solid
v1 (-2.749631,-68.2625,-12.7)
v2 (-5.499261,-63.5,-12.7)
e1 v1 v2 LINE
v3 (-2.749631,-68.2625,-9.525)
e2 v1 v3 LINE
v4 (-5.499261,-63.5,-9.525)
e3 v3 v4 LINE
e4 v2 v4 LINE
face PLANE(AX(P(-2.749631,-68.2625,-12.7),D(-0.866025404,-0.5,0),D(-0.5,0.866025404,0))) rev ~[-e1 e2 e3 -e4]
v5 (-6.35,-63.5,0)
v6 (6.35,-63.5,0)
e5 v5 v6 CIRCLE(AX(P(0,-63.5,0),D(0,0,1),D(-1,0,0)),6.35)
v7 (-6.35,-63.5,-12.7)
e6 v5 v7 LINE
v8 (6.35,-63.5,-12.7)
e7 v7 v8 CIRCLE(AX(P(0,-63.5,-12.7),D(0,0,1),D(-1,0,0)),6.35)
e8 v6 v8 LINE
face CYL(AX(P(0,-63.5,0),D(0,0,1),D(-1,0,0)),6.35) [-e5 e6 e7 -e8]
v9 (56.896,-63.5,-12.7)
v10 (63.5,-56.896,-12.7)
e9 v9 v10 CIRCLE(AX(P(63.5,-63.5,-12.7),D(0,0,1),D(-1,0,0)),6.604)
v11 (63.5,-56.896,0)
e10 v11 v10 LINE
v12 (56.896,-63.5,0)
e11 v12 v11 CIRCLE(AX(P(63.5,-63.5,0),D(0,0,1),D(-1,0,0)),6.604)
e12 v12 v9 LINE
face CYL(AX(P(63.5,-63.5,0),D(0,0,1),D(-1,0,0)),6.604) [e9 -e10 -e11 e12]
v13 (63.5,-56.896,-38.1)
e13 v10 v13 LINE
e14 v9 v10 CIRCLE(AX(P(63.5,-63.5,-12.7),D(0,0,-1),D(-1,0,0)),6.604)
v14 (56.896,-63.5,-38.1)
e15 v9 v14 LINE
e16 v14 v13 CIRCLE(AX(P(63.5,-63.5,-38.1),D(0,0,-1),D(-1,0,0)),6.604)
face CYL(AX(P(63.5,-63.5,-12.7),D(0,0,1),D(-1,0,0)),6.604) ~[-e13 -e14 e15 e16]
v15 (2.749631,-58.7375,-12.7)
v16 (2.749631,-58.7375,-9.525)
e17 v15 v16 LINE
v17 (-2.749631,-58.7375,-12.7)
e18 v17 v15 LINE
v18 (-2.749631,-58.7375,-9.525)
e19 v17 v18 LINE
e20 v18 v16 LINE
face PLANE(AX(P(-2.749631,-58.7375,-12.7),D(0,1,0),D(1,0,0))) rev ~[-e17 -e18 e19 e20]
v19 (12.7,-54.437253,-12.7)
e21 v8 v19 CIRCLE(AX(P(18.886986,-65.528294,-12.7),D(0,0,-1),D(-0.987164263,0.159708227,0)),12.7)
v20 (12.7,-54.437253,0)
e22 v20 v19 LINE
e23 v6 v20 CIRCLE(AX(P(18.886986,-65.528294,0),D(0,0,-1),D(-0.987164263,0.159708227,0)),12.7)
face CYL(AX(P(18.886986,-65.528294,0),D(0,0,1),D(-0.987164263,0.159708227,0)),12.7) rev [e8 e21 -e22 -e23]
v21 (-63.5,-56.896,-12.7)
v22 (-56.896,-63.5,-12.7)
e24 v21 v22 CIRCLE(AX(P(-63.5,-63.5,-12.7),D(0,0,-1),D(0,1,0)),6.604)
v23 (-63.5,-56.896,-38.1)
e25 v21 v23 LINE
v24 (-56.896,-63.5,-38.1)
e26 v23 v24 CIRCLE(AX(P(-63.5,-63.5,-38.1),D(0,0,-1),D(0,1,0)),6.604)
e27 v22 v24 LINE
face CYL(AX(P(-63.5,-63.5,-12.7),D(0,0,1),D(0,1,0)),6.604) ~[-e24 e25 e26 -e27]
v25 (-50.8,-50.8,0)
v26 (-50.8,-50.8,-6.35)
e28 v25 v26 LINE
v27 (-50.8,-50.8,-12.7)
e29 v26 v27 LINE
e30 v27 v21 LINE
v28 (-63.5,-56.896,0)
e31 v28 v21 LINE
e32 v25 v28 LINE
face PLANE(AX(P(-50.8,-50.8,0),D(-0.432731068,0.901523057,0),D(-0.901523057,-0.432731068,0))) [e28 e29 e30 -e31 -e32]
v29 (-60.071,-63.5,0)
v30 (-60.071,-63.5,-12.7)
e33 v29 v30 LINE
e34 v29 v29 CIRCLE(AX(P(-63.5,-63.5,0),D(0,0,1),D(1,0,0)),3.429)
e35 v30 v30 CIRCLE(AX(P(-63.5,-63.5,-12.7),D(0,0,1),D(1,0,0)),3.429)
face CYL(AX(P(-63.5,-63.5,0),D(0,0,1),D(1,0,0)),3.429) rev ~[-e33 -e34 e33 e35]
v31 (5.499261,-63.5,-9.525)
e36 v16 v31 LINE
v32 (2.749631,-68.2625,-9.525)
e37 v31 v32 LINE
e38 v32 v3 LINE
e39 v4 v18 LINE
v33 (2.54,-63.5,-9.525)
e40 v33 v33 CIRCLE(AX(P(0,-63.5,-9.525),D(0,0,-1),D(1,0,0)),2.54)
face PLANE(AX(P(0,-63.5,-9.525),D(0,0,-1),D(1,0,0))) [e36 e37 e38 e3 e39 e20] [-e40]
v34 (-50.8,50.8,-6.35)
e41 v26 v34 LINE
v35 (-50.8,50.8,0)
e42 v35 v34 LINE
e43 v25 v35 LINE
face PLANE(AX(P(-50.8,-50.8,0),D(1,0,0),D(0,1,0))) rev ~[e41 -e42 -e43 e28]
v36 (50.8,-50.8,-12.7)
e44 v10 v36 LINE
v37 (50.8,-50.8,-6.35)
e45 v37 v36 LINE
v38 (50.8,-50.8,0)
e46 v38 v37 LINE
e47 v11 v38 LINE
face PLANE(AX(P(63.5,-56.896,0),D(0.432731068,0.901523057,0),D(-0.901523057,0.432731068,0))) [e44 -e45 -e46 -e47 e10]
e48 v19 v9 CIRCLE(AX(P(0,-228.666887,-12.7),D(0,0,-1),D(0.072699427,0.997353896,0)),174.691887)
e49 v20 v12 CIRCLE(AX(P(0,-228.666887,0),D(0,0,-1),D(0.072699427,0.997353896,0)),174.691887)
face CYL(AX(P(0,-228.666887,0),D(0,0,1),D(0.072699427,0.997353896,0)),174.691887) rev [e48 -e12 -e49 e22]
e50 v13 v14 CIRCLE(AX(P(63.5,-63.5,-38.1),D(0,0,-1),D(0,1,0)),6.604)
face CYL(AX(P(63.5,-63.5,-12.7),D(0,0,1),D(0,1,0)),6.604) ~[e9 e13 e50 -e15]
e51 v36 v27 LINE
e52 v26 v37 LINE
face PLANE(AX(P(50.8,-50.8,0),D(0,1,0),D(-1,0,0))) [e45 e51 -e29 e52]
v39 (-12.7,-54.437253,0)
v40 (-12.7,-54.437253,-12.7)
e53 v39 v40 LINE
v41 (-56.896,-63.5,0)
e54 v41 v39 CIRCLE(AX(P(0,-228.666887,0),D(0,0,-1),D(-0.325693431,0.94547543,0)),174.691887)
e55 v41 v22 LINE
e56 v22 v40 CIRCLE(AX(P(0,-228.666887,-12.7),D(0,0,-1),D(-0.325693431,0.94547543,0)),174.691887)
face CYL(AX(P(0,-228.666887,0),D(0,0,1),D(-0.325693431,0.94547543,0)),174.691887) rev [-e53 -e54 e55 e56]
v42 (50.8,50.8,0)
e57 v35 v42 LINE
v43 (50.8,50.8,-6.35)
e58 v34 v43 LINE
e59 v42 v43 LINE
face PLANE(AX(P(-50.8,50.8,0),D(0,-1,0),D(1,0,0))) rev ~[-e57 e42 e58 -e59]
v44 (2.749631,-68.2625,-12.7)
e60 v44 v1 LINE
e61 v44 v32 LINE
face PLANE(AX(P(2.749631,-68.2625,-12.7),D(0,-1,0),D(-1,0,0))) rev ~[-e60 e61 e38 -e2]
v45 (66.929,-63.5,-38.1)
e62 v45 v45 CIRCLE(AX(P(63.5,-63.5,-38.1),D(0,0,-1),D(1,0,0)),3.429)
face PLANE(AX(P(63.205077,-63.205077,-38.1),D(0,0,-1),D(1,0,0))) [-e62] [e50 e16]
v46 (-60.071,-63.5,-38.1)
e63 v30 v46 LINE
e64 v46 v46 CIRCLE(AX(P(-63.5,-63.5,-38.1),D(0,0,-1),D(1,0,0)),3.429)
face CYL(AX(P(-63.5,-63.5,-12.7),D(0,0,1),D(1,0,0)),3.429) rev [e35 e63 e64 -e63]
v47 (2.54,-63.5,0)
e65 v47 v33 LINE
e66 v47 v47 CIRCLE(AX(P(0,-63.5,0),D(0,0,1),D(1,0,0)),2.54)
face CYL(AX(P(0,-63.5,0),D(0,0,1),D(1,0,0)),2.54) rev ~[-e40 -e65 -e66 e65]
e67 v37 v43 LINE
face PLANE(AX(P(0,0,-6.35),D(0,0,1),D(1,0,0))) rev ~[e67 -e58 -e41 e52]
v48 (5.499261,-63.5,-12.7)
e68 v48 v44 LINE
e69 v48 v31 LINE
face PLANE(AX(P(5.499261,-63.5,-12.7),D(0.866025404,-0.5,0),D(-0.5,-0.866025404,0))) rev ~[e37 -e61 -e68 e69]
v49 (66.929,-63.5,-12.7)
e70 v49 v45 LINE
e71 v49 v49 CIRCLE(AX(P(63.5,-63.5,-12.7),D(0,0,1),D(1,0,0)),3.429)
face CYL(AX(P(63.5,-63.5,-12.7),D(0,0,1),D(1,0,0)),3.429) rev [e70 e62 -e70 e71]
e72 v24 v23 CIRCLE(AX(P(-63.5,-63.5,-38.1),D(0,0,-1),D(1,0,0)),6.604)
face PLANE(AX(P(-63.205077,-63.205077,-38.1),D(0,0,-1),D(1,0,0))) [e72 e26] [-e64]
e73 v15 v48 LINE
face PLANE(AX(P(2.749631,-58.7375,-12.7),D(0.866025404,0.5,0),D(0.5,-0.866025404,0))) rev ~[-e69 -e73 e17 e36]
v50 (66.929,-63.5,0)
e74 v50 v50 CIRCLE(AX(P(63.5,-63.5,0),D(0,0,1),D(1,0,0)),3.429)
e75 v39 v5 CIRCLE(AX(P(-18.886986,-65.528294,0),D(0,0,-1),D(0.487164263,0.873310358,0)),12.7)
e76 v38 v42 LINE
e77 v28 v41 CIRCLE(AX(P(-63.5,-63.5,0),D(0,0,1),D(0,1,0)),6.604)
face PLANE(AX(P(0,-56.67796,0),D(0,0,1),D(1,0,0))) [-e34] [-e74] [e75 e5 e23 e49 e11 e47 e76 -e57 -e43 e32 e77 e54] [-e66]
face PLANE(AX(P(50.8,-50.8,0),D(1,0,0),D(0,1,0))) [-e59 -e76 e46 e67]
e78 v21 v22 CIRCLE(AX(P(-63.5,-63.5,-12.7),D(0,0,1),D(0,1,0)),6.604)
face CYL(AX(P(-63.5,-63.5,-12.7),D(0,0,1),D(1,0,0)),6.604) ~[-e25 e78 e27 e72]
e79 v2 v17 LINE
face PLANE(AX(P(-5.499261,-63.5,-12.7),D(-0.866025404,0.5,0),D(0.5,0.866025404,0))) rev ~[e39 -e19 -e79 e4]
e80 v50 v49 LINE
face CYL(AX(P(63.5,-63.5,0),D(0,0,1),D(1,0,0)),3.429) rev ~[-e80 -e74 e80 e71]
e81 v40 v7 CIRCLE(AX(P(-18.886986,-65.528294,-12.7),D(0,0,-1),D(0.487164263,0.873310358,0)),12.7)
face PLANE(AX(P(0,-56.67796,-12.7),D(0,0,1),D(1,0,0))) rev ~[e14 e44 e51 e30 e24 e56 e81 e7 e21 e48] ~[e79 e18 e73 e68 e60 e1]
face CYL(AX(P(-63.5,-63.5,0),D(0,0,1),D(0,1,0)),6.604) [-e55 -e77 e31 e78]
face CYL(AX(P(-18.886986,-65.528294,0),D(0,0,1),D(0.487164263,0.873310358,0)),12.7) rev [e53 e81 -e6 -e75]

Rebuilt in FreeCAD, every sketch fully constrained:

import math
import FreeCAD as App
import Part
import Sketcher

V = App.Vector
Q = App.Units.Quantity

doc = App.newDocument("Part")
params = doc.addObject("Spreadsheet::Sheet", "Params")
for row, (alias, value) in enumerate([
    ("sketch1_width", "4 in"),
    ("pad1_length", "0.25 in"),
    ("sketch2_diameter", "0.2 in"),
    ("sketch2_radius", "0.5 in"),
    ("sketch2_diameter2", "0.27 in"),
    ("sketch2_width", "4 in"),
    ("sketch2_radius2", "0.26 in"),
    ("pad2_length", "0.5 in"),
    ("sketch3_diameter", "0.27 in"),
    ("sketch3_radius", "0.26 in"),
    ("pad3_length", "1 in"),
    ("sketch4_diameter", "0.2 in"),
    ("pocket1_length", "0.125 in"),
], start=1):
    params.set(f"A{row}", alias)
    params.set(f"B{row}", "=" + value)
    params.setAlias(f"B{row}", alias)

body = doc.addObject("PartDesign::Body", "Body")

# Sketch on XY plane
sketch1 = doc.addObject("Sketcher::SketchObject", "Sketch")
body.addObject(sketch1)
sketch1.AttachmentSupport = (doc.XY_Plane, [""])
sketch1.MapMode = "FlatFace"
sketch1.addGeometry(Part.LineSegment(V(-51, 51, 0), V(-51, -51, 0)), False)
sketch1.addGeometry(Part.LineSegment(V(-51, -51, 0), V(51, -51, 0)), False)
sketch1.addGeometry(Part.LineSegment(V(51, -51, 0), V(51, 51, 0)), False)
sketch1.addGeometry(Part.LineSegment(V(51, 51, 0), V(-51, 51, 0)), False)
sketch1.addConstraint(Sketcher.Constraint("Coincident", 0, 2, 1, 1))
sketch1.addConstraint(Sketcher.Constraint("Coincident", 1, 2, 2, 1))
sketch1.addConstraint(Sketcher.Constraint("Coincident", 2, 2, 3, 1))
sketch1.addConstraint(Sketcher.Constraint("Coincident", 3, 2, 0, 1))
sketch1.addConstraint(Sketcher.Constraint("Vertical", 0))
sketch1.addConstraint(Sketcher.Constraint("Horizontal", 1))
sketch1.addConstraint(Sketcher.Constraint("Vertical", 2))
sketch1.addConstraint(Sketcher.Constraint("Horizontal", 3))
sketch1.addConstraint(Sketcher.Constraint("Symmetric", 0, 2, 2, 2, -1, 1))
sketch1.addConstraint(Sketcher.Constraint("Equal", 3, 0))
sketch1.addConstraint(Sketcher.Constraint("DistanceX", 1, 1, 1, 2, Q("4 in")))
sketch1.setExpression("Constraints[10]", "Params.sketch1_width")
pad1 = doc.addObject("PartDesign::Pad", "Pad")
body.addObject(pad1)
pad1.Profile = sketch1
pad1.setExpression("Length", "Params.pad1_length")
pad1.Reversed = True

# Sketch on XY plane
sketch2 = doc.addObject("Sketcher::SketchObject", "Sketch001")
body.addObject(sketch2)
sketch2.AttachmentSupport = (doc.XY_Plane, [""])
sketch2.MapMode = "FlatFace"
sketch2.addGeometry(Part.LineSegment(V(-50.8, -50.8, 0), V(-63.5, -56.9, 0)), False)
sketch2.addGeometry(Part.ArcOfCircle(Part.Circle(V(-63.5, -63.5, 0), V(0, 0, 1), 6.6), math.radians(90), math.radians(360)), False)
sketch2.addGeometry(Part.ArcOfCircle(Part.Circle(V(0, -228.7, 0), V(0, 0, 1), 174.7), math.radians(94.17), math.radians(109.01)), False)
sketch2.addGeometry(Part.ArcOfCircle(Part.Circle(V(-18.9, -65.5, 0), V(0, 0, 1), 12.7), math.radians(9), math.radians(61)), False)
sketch2.addGeometry(Part.ArcOfCircle(Part.Circle(V(0, -63.5, 0), V(0, 0, 1), 6.3), math.radians(180), math.radians(360)), False)
sketch2.addGeometry(Part.ArcOfCircle(Part.Circle(V(18.9, -65.5, 0), V(0, 0, 1), 12.7), math.radians(119), math.radians(171)), False)
sketch2.addGeometry(Part.ArcOfCircle(Part.Circle(V(0, -228.7, 0), V(0, 0, 1), 174.7), math.radians(70.99), math.radians(85.83)), False)
sketch2.addGeometry(Part.ArcOfCircle(Part.Circle(V(63.5, -63.5, 0), V(0, 0, 1), 6.6), math.radians(180), math.radians(450)), False)
sketch2.addGeometry(Part.LineSegment(V(63.5, -56.9, 0), V(50.8, -50.8, 0)), False)
sketch2.addGeometry(Part.LineSegment(V(50.8, -50.8, 0), V(-50.8, -50.8, 0)), False)
sketch2.addGeometry(Part.Circle(V(-63.5, -63.5, 0), V(0, 0, 1), 3.4), False)
sketch2.addGeometry(Part.Circle(V(0, -63.5, 0), V(0, 0, 1), 2.5), False)
sketch2.addGeometry(Part.Circle(V(63.5, -63.5, 0), V(0, 0, 1), 3.4), False)
sketch2.addConstraint(Sketcher.Constraint("Coincident", 0, 2, 1, 1))
sketch2.addConstraint(Sketcher.Constraint("Coincident", 1, 2, 2, 2))
sketch2.addConstraint(Sketcher.Constraint("Coincident", 2, 1, 3, 2))
sketch2.addConstraint(Sketcher.Constraint("Coincident", 3, 1, 4, 1))
sketch2.addConstraint(Sketcher.Constraint("Coincident", 4, 2, 5, 2))
sketch2.addConstraint(Sketcher.Constraint("Coincident", 5, 1, 6, 2))
sketch2.addConstraint(Sketcher.Constraint("Coincident", 6, 1, 7, 1))
sketch2.addConstraint(Sketcher.Constraint("Coincident", 7, 2, 8, 1))
sketch2.addConstraint(Sketcher.Constraint("Coincident", 8, 2, 9, 1))
sketch2.addConstraint(Sketcher.Constraint("Coincident", 9, 2, 0, 1))
sketch2.addConstraint(Sketcher.Constraint("Horizontal", 9))
sketch2.addConstraint(Sketcher.Constraint("Coincident", 6, 3, 2, 3))
sketch2.addConstraint(Sketcher.Constraint("Coincident", 10, 3, 1, 3))
sketch2.addConstraint(Sketcher.Constraint("Coincident", 11, 3, 4, 3))
sketch2.addConstraint(Sketcher.Constraint("Coincident", 12, 3, 7, 3))
sketch2.addConstraint(Sketcher.Constraint("Equal", 3, 5))
sketch2.addConstraint(Sketcher.Constraint("Equal", 2, 6))
sketch2.addConstraint(Sketcher.Constraint("Equal", 1, 7))
sketch2.addConstraint(Sketcher.Constraint("Equal", 10, 12))
sketch2.addConstraint(Sketcher.Constraint("Symmetric", 3, 3, 5, 3, -2))
sketch2.addConstraint(Sketcher.Constraint("Symmetric", 1, 3, 7, 3, -2))
sketch2.addConstraint(Sketcher.Constraint("PointOnObject", 2, 3, -2))
sketch2.addConstraint(Sketcher.Constraint("PointOnObject", 4, 3, -2))
sketch2.addConstraint(Sketcher.Constraint("Horizontal", 1, 3, 4, 3))
sketch2.addConstraint(Sketcher.Constraint("Horizontal", 12, 3, 1, 2))
sketch2.addConstraint(Sketcher.Constraint("Horizontal", 1, 2, 3, 1))
sketch2.addConstraint(Sketcher.Constraint("Vertical", 10, 3, 0, 2))
sketch2.addConstraint(Sketcher.Constraint("Vertical", 12, 3, 7, 2))
sketch2.addConstraint(Sketcher.Constraint("Equal", 0, 8))
sketch2.addConstraint(Sketcher.Constraint("Diameter", 11, Q("0.2 in")))
sketch2.addConstraint(Sketcher.Constraint("Radius", 3, Q("0.5 in")))
sketch2.addConstraint(Sketcher.Constraint("Diameter", 10, Q("0.27 in")))
sketch2.addConstraint(Sketcher.Constraint("DistanceX", 9, 2, 9, 1, Q("4 in")))
sketch2.addConstraint(Sketcher.Constraint("Radius", 1, Q("0.26 in")))
sketch2.addConstraint(Sketcher.Constraint("Radius", 4, Q("0.25 in")))
sketch2.addConstraint(Sketcher.Constraint("DistanceY", 8, 2, -1, 1, Q("2 in")))
sketch2.addConstraint(Sketcher.Constraint("DistanceX", 1, 3, 7, 3, Q("5 in")))
sketch2.addConstraint(Sketcher.Constraint("DistanceX", 5, 1, 7, 2, Q("2 in")))
sketch2.addConstraint(Sketcher.Constraint("DistanceY", 1, 3, -1, 1, Q("2.5 in")))
sketch2.addConstraint(Sketcher.Constraint("Radius", 2, 174.691887))
sketch2.setExpression("Constraints[29]", "Params.sketch2_diameter")
sketch2.setExpression("Constraints[30]", "Params.sketch2_radius")
sketch2.setExpression("Constraints[31]", "Params.sketch2_diameter2")
sketch2.setExpression("Constraints[32]", "Params.sketch2_width")
sketch2.setExpression("Constraints[33]", "Params.sketch2_radius2")
pad2 = doc.addObject("PartDesign::Pad", "Pad001")
body.addObject(pad2)
pad2.Profile = sketch2
pad2.setExpression("Length", "Params.pad2_length")
pad2.Reversed = True

# Sketch on XY plane
sketch3 = doc.addObject("Sketcher::SketchObject", "Sketch002")
body.addObject(sketch3)
sketch3.AttachmentSupport = (doc.XY_Plane, [""])
sketch3.MapMode = "FlatFace"
sketch3.AttachmentOffset = App.Placement(V(0, 0, -0.5 * 25.4), App.Rotation())
sketch3.addGeometry(Part.ArcOfCircle(Part.Circle(V(-63.5, -63.5, 0), V(0, 0, 1), 6.6), math.radians(90), math.radians(360)), False)
sketch3.addGeometry(Part.ArcOfCircle(Part.Circle(V(-63.5, -63.5, 0), V(0, 0, 1), 6.6), math.radians(0), math.radians(90)), False)
sketch3.addGeometry(Part.Circle(V(-63.5, -63.5, 0), V(0, 0, 1), 3.4), False)
sketch3.addGeometry(Part.ArcOfCircle(Part.Circle(V(63.5, -63.5, 0), V(0, 0, 1), 6.6), math.radians(90), math.radians(180)), False)
sketch3.addGeometry(Part.ArcOfCircle(Part.Circle(V(63.5, -63.5, 0), V(0, 0, 1), 6.6), math.radians(180), math.radians(450)), False)
sketch3.addGeometry(Part.Circle(V(63.5, -63.5, 0), V(0, 0, 1), 3.4), False)
sketch3.addConstraint(Sketcher.Constraint("Tangent", 0, 1, 1, 2))
sketch3.addConstraint(Sketcher.Constraint("Coincident", 1, 1, 0, 2))
sketch3.addConstraint(Sketcher.Constraint("Tangent", 3, 1, 4, 2))
sketch3.addConstraint(Sketcher.Constraint("Coincident", 4, 1, 3, 2))
sketch3.addConstraint(Sketcher.Constraint("Coincident", 2, 3, 0, 3))
sketch3.addConstraint(Sketcher.Constraint("Coincident", 5, 3, 3, 3))
sketch3.addConstraint(Sketcher.Constraint("Equal", 1, 3))
sketch3.addConstraint(Sketcher.Constraint("Equal", 2, 5))
sketch3.addConstraint(Sketcher.Constraint("Symmetric", 0, 3, 3, 3, -2))
sketch3.addConstraint(Sketcher.Constraint("Horizontal", 5, 3, 1, 1))
sketch3.addConstraint(Sketcher.Constraint("Horizontal", 1, 1, 4, 1))
sketch3.addConstraint(Sketcher.Constraint("Vertical", 2, 3, 0, 1))
sketch3.addConstraint(Sketcher.Constraint("Vertical", 5, 3, 3, 1))
sketch3.addConstraint(Sketcher.Constraint("Diameter", 2, Q("0.27 in")))
sketch3.addConstraint(Sketcher.Constraint("Radius", 0, Q("0.26 in")))
sketch3.addConstraint(Sketcher.Constraint("DistanceX", 0, 3, 3, 3, Q("5 in")))
sketch3.addConstraint(Sketcher.Constraint("DistanceY", 0, 3, -1, 1, Q("2.5 in")))
sketch3.setExpression("Constraints[13]", "Params.sketch3_diameter")
sketch3.setExpression("Constraints[14]", "Params.sketch3_radius")
pad3 = doc.addObject("PartDesign::Pad", "Pad002")
body.addObject(pad3)
pad3.Profile = sketch3
pad3.setExpression("Length", "Params.pad3_length")
pad3.Reversed = True

# Sketch on XY plane
sketch4 = doc.addObject("Sketcher::SketchObject", "Sketch003")
body.addObject(sketch4)
sketch4.AttachmentSupport = (doc.XY_Plane, [""])
sketch4.MapMode = "FlatFace"
sketch4.AttachmentOffset = App.Placement(V(0, 0, -0.5 * 25.4), App.Rotation())
sketch4.addGeometry(Part.LineSegment(V(2.7, -68.3, 0), V(-2.7, -68.3, 0)), False)
sketch4.addGeometry(Part.LineSegment(V(-2.7, -68.3, 0), V(-5.5, -63.5, 0)), False)
sketch4.addGeometry(Part.LineSegment(V(-5.5, -63.5, 0), V(-2.7, -58.7, 0)), False)
sketch4.addGeometry(Part.LineSegment(V(-2.7, -58.7, 0), V(2.7, -58.7, 0)), False)
sketch4.addGeometry(Part.LineSegment(V(2.7, -58.7, 0), V(5.5, -63.5, 0)), False)
sketch4.addGeometry(Part.LineSegment(V(5.5, -63.5, 0), V(2.7, -68.3, 0)), False)
sketch4.addGeometry(Part.Circle(V(0, -63.5, 0), V(0, 0, 1), 2.5), False)
sketch4.addConstraint(Sketcher.Constraint("Coincident", 0, 2, 1, 1))
sketch4.addConstraint(Sketcher.Constraint("Coincident", 1, 2, 2, 1))
sketch4.addConstraint(Sketcher.Constraint("Coincident", 2, 2, 3, 1))
sketch4.addConstraint(Sketcher.Constraint("Coincident", 3, 2, 4, 1))
sketch4.addConstraint(Sketcher.Constraint("Coincident", 4, 2, 5, 1))
sketch4.addConstraint(Sketcher.Constraint("Coincident", 5, 2, 0, 1))
sketch4.addConstraint(Sketcher.Constraint("Horizontal", 0))
sketch4.addConstraint(Sketcher.Constraint("Horizontal", 3))
sketch4.addConstraint(Sketcher.Constraint("Symmetric", 1, 2, 4, 2, -2))
sketch4.addConstraint(Sketcher.Constraint("PointOnObject", 6, 3, -2))
sketch4.addConstraint(Sketcher.Constraint("Parallel", 1, 4))
sketch4.addConstraint(Sketcher.Constraint("Parallel", 2, 5))
sketch4.addConstraint(Sketcher.Constraint("Horizontal", 6, 3, 1, 2))
sketch4.addConstraint(Sketcher.Constraint("Vertical", 0, 2, 2, 2))
sketch4.addConstraint(Sketcher.Constraint("Vertical", 3, 2, 5, 2))
sketch4.addConstraint(Sketcher.Constraint("Diameter", 6, Q("0.2 in")))
sketch4.addConstraint(Sketcher.Constraint("Angle", 1, Q("120 deg")))
sketch4.addConstraint(Sketcher.Constraint("DistanceY", 6, 3, -1, 1, Q("2.5 in")))
sketch4.addConstraint(Sketcher.Constraint("DistanceY", 0, 2, -1, 1, Q("2.6875 in")))
sketch4.addConstraint(Sketcher.Constraint("DistanceX", 0, 2, 0, 1, 5.499261))
sketch4.setExpression("Constraints[15]", "Params.sketch4_diameter")
pocket1 = doc.addObject("PartDesign::Pocket", "Pocket")
body.addObject(pocket1)
pocket1.Profile = sketch4
pocket1.setExpression("Length", "Params.pocket1_length")
pocket1.Reversed = True

doc.recompute()
